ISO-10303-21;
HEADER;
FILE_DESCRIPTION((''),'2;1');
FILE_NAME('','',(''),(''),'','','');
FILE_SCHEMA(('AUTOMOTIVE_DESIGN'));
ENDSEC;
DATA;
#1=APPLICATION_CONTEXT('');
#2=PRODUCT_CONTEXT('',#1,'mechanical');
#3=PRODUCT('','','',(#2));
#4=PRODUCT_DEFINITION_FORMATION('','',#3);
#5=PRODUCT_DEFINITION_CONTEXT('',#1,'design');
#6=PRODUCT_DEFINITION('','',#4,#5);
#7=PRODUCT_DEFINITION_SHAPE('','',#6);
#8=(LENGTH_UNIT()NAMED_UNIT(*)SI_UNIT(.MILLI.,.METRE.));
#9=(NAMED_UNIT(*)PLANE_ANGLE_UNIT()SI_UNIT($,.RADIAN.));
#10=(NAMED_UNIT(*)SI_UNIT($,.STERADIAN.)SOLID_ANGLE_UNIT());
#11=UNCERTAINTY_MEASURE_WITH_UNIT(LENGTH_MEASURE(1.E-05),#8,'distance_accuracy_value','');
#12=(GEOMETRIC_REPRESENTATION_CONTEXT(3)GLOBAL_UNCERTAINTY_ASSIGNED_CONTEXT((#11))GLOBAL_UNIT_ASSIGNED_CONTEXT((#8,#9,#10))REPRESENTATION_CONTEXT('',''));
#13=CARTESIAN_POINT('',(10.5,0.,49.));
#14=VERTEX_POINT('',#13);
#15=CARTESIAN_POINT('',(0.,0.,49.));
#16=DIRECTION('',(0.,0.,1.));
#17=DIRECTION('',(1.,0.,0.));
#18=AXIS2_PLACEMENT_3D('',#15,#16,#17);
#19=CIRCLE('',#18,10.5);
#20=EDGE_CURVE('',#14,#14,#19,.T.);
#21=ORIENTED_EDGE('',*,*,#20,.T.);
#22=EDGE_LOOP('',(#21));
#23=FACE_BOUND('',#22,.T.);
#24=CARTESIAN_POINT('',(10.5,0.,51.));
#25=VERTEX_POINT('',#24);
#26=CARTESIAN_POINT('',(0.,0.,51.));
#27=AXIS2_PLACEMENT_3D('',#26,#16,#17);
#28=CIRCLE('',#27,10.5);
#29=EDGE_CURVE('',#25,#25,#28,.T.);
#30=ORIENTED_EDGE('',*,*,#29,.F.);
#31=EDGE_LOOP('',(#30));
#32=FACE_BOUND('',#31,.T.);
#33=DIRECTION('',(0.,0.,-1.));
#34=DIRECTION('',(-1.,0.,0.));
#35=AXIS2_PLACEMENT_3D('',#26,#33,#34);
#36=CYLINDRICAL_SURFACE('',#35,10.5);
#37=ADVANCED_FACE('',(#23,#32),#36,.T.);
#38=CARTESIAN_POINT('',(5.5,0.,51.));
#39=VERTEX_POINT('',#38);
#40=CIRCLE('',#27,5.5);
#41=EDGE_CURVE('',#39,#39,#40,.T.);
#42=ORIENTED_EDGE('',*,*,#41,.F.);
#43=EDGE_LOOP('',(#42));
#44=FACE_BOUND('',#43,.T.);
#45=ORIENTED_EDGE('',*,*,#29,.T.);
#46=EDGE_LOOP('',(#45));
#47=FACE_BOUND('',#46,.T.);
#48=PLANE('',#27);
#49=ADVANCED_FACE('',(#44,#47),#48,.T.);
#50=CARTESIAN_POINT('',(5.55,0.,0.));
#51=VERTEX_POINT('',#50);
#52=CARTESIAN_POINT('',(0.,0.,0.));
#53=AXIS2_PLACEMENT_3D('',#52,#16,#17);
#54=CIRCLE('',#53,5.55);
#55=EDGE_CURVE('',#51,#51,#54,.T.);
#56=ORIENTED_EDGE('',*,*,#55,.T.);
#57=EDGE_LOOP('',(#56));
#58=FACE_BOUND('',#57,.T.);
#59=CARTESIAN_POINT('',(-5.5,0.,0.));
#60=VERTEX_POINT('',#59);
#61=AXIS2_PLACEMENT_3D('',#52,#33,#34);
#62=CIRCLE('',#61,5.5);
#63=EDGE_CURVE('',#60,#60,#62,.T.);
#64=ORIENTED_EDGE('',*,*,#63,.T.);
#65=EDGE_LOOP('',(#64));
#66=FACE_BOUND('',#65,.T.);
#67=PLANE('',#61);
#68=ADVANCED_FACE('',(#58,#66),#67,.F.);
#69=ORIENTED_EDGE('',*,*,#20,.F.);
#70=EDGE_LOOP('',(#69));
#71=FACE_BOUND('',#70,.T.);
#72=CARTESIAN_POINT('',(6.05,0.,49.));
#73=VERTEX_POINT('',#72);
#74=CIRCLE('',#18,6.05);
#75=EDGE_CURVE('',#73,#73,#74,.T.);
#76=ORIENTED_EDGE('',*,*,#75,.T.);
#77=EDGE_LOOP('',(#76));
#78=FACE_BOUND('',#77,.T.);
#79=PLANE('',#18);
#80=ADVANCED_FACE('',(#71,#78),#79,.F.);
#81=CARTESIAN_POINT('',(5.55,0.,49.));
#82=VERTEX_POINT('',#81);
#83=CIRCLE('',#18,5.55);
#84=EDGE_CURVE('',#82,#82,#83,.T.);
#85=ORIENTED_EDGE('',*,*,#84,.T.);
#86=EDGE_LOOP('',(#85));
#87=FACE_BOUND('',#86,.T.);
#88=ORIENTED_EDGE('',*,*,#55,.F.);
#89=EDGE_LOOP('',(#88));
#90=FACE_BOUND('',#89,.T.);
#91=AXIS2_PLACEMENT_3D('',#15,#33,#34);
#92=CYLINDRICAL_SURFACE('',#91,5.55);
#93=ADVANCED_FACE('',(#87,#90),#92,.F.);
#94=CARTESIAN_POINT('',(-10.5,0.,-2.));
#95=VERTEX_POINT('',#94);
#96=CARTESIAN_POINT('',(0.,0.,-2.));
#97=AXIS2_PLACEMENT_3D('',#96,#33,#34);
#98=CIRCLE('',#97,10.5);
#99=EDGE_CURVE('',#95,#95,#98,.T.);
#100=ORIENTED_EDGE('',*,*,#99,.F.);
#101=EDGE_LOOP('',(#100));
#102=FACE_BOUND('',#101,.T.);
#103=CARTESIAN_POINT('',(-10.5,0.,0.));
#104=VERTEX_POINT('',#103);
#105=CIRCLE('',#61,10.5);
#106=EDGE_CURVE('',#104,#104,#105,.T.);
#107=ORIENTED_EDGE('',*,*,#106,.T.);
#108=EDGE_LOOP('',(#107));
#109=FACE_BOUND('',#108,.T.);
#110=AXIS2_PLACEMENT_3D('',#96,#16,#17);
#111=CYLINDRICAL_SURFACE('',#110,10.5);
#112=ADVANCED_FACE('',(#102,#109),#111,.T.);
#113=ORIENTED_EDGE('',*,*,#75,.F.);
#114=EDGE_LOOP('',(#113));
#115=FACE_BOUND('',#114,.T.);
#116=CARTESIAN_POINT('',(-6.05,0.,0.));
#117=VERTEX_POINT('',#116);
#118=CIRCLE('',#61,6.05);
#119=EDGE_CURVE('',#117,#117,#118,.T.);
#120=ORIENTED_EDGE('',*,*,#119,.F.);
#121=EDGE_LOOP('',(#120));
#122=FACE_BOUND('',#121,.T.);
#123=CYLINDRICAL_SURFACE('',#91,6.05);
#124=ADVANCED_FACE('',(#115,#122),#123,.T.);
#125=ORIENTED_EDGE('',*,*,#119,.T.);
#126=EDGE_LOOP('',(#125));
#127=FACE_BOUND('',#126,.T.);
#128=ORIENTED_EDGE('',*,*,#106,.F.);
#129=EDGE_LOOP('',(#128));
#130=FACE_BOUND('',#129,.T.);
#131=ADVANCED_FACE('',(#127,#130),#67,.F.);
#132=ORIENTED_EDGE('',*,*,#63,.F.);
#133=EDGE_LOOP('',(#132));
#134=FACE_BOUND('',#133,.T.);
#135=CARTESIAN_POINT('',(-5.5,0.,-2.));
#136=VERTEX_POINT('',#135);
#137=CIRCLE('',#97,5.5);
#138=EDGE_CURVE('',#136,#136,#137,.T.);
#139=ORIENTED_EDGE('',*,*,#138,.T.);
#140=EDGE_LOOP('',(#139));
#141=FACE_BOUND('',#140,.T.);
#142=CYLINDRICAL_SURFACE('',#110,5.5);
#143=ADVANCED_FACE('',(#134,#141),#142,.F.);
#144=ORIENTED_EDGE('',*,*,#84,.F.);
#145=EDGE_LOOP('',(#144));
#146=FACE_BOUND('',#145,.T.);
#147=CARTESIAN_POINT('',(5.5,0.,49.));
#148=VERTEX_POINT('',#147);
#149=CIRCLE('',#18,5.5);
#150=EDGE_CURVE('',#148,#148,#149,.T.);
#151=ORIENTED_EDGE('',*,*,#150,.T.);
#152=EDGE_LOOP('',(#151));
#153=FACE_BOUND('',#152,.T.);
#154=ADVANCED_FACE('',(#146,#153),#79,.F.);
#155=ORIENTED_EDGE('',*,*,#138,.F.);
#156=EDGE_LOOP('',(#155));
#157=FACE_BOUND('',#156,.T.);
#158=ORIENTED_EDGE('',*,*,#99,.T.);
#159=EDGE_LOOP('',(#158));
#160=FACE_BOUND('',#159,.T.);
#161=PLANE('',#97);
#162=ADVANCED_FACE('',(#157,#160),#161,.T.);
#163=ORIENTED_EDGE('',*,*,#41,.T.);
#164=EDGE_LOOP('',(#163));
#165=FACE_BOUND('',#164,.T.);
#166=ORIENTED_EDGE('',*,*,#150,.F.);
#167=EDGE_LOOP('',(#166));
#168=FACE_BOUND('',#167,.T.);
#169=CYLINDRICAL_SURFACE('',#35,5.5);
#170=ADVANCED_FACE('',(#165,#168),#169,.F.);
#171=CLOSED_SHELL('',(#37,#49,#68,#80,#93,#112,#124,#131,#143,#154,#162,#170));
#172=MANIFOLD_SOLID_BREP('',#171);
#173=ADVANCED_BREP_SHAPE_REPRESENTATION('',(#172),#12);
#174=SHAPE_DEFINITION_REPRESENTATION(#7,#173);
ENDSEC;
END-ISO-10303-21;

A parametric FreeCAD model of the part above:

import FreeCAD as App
import Part
import Sketcher

doc = App.newDocument("Part")
body = doc.addObject("PartDesign::Body", "Body")

# Sketch on XY plane
sketch1 = body.newObject("Sketcher::SketchObject", "Sketch")
sketch1.AttachmentSupport = (doc.getObject("XY_Plane"), [""])
sketch1.MapMode = "FlatFace"
sketch1.addGeometry(Part.Circle(App.Vector(0, 0, 0), App.Vector(0, 0, 1), 6), False)
sketch1.addGeometry(Part.Circle(App.Vector(0, 0, 0), App.Vector(0, 0, 1), 6), False)
sketch1.addConstraint(Sketcher.Constraint("Coincident", 0, 3, -1, 1))
sketch1.addConstraint(Sketcher.Constraint("Coincident", 1, 3, -1, 1))
sketch1.addConstraint(Sketcher.Constraint("Diameter", 0, 12.1))
sketch1.addConstraint(Sketcher.Constraint("Diameter", 1, 11.1))
pad1 = body.newObject("PartDesign::Pad", "Pad")
pad1.Profile = sketch1
pad1.Length = 49

# Sketch on XY plane
sketch2 = body.newObject("Sketcher::SketchObject", "Sketch001")
sketch2.AttachmentSupport = (doc.getObject("XY_Plane"), [""])
sketch2.MapMode = "FlatFace"
sketch2.AttachmentOffset = App.Placement(App.Vector(0, 0, 49), App.Rotation())
sketch2.addGeometry(Part.Circle(App.Vector(0, 0, 0), App.Vector(0, 0, 1), 10), False)
sketch2.addGeometry(Part.Circle(App.Vector(0, 0, 0), App.Vector(0, 0, 1), 6), False)
sketch2.addConstraint(Sketcher.Constraint("Coincident", 0, 3, -1, 1))
sketch2.addConstraint(Sketcher.Constraint("Coincident", 1, 3, -1, 1))
sketch2.addConstraint(Sketcher.Constraint("Diameter", 0, 21.0))
sketch2.addConstraint(Sketcher.Constraint("Diameter", 1, 11.0))
pad2 = body.newObject("PartDesign::Pad", "Pad001")
pad2.Profile = sketch2
pad2.Length = 2

# Sketch on XY plane
sketch3 = body.newObject("Sketcher::SketchObject", "Sketch002")
sketch3.AttachmentSupport = (doc.getObject("XY_Plane"), [""])
sketch3.MapMode = "FlatFace"
sketch3.AttachmentOffset = App.Placement(App.Vector(0, 0, -2), App.Rotation())
sketch3.addGeometry(Part.Circle(App.Vector(0, 0, 0), App.Vector(0, 0, 1), 10), False)
sketch3.addGeometry(Part.Circle(App.Vector(0, 0, 0), App.Vector(0, 0, 1), 6), False)
sketch3.addConstraint(Sketcher.Constraint("Coincident", 0, 3, -1, 1))
sketch3.addConstraint(Sketcher.Constraint("Coincident", 1, 3, -1, 1))
sketch3.addConstraint(Sketcher.Constraint("Diameter", 0, 21.0))
sketch3.addConstraint(Sketcher.Constraint("Diameter", 1, 11.0))
pad3 = body.newObject("PartDesign::Pad", "Pad002")
pad3.Profile = sketch3
pad3.Length = 2

doc.recompute()
